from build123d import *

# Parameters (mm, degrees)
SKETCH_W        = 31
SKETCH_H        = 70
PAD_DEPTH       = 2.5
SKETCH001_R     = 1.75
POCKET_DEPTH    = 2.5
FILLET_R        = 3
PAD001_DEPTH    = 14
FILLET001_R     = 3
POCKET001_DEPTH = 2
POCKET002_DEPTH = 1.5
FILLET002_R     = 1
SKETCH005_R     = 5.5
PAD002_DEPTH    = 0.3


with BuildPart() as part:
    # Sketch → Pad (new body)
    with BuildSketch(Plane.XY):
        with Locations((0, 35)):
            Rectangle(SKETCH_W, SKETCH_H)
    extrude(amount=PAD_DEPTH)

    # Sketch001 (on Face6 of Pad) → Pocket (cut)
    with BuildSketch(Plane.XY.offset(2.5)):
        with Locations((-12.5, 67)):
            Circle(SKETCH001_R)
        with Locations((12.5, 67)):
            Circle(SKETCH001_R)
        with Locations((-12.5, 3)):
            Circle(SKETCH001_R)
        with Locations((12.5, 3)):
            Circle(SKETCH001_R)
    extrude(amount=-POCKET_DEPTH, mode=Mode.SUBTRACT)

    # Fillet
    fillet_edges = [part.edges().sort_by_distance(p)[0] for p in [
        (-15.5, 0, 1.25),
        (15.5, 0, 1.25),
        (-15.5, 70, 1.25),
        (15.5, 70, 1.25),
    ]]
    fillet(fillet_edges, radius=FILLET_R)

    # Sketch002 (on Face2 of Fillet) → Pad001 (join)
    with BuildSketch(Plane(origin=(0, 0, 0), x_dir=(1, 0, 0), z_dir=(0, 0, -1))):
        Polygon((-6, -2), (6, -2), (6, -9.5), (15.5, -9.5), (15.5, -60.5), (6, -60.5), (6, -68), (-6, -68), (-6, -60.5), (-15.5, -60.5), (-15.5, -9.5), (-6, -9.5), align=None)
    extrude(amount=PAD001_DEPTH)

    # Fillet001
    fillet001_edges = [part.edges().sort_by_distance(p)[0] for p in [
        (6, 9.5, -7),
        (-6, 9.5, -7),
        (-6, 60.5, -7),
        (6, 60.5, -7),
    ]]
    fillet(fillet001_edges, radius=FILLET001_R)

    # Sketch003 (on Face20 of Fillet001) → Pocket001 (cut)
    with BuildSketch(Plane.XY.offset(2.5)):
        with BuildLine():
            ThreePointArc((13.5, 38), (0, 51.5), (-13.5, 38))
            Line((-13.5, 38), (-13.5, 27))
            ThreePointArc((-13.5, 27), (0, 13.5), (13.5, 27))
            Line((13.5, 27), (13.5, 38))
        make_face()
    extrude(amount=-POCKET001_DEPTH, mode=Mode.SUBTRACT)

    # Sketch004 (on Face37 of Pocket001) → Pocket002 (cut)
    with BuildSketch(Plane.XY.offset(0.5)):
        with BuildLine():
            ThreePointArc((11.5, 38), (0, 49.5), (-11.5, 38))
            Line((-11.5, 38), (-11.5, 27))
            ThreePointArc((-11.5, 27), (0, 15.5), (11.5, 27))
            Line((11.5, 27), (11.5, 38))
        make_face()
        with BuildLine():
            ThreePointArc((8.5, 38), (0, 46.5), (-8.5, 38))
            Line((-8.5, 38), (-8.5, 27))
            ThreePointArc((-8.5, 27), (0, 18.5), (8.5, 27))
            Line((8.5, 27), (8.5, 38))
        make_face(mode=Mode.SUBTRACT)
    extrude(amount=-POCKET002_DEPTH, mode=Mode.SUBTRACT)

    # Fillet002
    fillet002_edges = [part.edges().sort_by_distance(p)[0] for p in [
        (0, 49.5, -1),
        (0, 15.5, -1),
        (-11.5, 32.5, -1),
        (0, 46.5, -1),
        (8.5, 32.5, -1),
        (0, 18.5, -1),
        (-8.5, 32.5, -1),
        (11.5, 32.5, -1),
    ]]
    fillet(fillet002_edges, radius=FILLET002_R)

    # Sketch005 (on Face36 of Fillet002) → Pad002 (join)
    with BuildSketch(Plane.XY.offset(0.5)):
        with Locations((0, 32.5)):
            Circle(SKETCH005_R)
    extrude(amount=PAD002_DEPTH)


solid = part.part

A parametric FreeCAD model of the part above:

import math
import FreeCAD as App
import Part
import Sketcher
from FreeCAD import Vector
Q = App.Units.Quantity


def edges_at(feature, points):
    """Names of the edges that pass closest to the given points."""
    edges = feature.Shape.Edges
    near = lambda p: min(range(len(edges)), key=lambda i: edges[i].distToShape(Part.Vertex(*p))[0])
    return sorted({f"Edge{near(p) + 1}" for p in points})

doc = App.newDocument("Part")
body = doc.addObject("PartDesign::Body", "Body")

sketch1 = doc.addObject("Sketcher::SketchObject", "Sketch")
body.addObject(sketch1)
sketch1.AttachmentSupport = (doc.XY_Plane, [""])
sketch1.MapMode = "FlatFace"
sketch1.addGeometry([
    Part.LineSegment(Vector(-16, 70, 0), Vector(-16, 0, 0)),
    Part.LineSegment(Vector(-16, 0, 0), Vector(16, 0, 0)),
    Part.LineSegment(Vector(16, 0, 0), Vector(16, 70, 0)),
    Part.LineSegment(Vector(16, 70, 0), Vector(-16, 70, 0)),
], False)
sketch1.addConstraint([
    Sketcher.Constraint("Coincident", 0, 2, 1, 1),
    Sketcher.Constraint("Coincident", 1, 2, 2, 1),
    Sketcher.Constraint("Coincident", 2, 2, 3, 1),
    Sketcher.Constraint("Coincident", 3, 2, 0, 1),
    Sketcher.Constraint("Vertical", 0),
    Sketcher.Constraint("Horizontal", 1),
    Sketcher.Constraint("Vertical", 2),
    Sketcher.Constraint("Horizontal", 3),
    Sketcher.Constraint("Symmetric", 0, 2, 1, 2, -1, 1),
    Sketcher.Constraint("DistanceX", 1, 1, 1, 2, Q("31 mm")),
    Sketcher.Constraint("DistanceY", 0, 2, 0, 1, Q("70 mm")),
])
pad1 = doc.addObject("PartDesign::Pad", "Pad")
body.addObject(pad1)
pad1.Profile = sketch1
pad1.Length = 2.5

sketch2 = doc.addObject("Sketcher::SketchObject", "Sketch001")
body.addObject(sketch2)
sketch2.AttachmentSupport = (doc.XY_Plane, [""])
sketch2.MapMode = "FlatFace"
sketch2.AttachmentOffset = App.Placement(Vector(0, 0, 2.5), App.Rotation())
sketch2.addGeometry([
    Part.Circle(Vector(-12.5, 67, 0), Vector(0, 0, 1), 1.8),
    Part.Circle(Vector(12.5, 67, 0), Vector(0, 0, 1), 1.8),
    Part.Circle(Vector(-12.5, 3, 0), Vector(0, 0, 1), 1.8),
    Part.Circle(Vector(12.5, 3, 0), Vector(0, 0, 1), 1.8),
], False)
sketch2.addConstraint([
    Sketcher.Constraint("Equal", 0, 1),
    Sketcher.Constraint("Equal", 1, 2),
    Sketcher.Constraint("Equal", 2, 3),
    Sketcher.Constraint("Symmetric", 0, 3, 1, 3, -2),
    Sketcher.Constraint("Symmetric", 2, 3, 3, 3, -2),
    Sketcher.Constraint("Vertical", 0, 3, 2, 3),
    Sketcher.Constraint("Diameter", 0, Q("3.5 mm")),
    Sketcher.Constraint("DistanceY", -1, 1, 0, 3, Q("67 mm")),
    Sketcher.Constraint("DistanceY", -1, 1, 2, 3, Q("3 mm")),
    Sketcher.Constraint("DistanceX", 0, 3, 1, 3, Q("25 mm")),
])
pocket1 = doc.addObject("PartDesign::Pocket", "Pocket")
body.addObject(pocket1)
pocket1.Profile = sketch2
pocket1.Length = 2.5
doc.recompute()

fillet = doc.addObject("PartDesign::Fillet", "Fillet")
body.addObject(fillet)
fillet.Base = (pocket1, edges_at(pocket1, [
    (-15.5, 0, 1.25),
    (15.5, 0, 1.25),
    (-15.5, 70, 1.25),
    (15.5, 70, 1.25),
]))
fillet.Radius = 3

sketch3 = doc.addObject("Sketcher::SketchObject", "Sketch002")
body.addObject(sketch3)
sketch3.AttachmentSupport = (doc.XY_Plane, [""])
sketch3.MapMode = "FlatFace"
sketch3.addGeometry([
    Part.LineSegment(Vector(6, 2, 0), Vector(-6, 2, 0)),
    Part.LineSegment(Vector(-6, 2, 0), Vector(-6, 10, 0)),
    Part.LineSegment(Vector(-6, 10, 0), Vector(-16, 10, 0)),
    Part.LineSegment(Vector(-16, 10, 0), Vector(-16, 60, 0)),
    Part.LineSegment(Vector(-16, 60, 0), Vector(-6, 60, 0)),
    Part.LineSegment(Vector(-6, 60, 0), Vector(-6, 68, 0)),
    Part.LineSegment(Vector(-6, 68, 0), Vector(6, 68, 0)),
    Part.LineSegment(Vector(6, 68, 0), Vector(6, 60, 0)),
    Part.LineSegment(Vector(6, 60, 0), Vector(16, 60, 0)),
    Part.LineSegment(Vector(16, 60, 0), Vector(16, 10, 0)),
    Part.LineSegment(Vector(16, 10, 0), Vector(6, 10, 0)),
    Part.LineSegment(Vector(6, 10, 0), Vector(6, 2, 0)),
], False)
sketch3.addConstraint([
    Sketcher.Constraint("Coincident", 0, 2, 1, 1),
    Sketcher.Constraint("Coincident", 1, 2, 2, 1),
    Sketcher.Constraint("Coincident", 2, 2, 3, 1),
    Sketcher.Constraint("Coincident", 3, 2, 4, 1),
    Sketcher.Constraint("Coincident", 4, 2, 5, 1),
    Sketcher.Constraint("Coincident", 5, 2, 6, 1),
    Sketcher.Constraint("Coincident", 6, 2, 7, 1),
    Sketcher.Constraint("Coincident", 7, 2, 8, 1),
    Sketcher.Constraint("Coincident", 8, 2, 9, 1),
    Sketcher.Constraint("Coincident", 9, 2, 10, 1),
    Sketcher.Constraint("Coincident", 10, 2, 11, 1),
    Sketcher.Constraint("Coincident", 11, 2, 0, 1),
    Sketcher.Constraint("Horizontal", 0),
    Sketcher.Constraint("Vertical", 1),
    Sketcher.Constraint("Horizontal", 2),
    Sketcher.Constraint("Vertical", 3),
    Sketcher.Constraint("Horizontal", 4),
    Sketcher.Constraint("Vertical", 5),
    Sketcher.Constraint("Horizontal", 6),
    Sketcher.Constraint("Vertical", 7),
    Sketcher.Constraint("Horizontal", 8),
    Sketcher.Constraint("Vertical", 9),
    Sketcher.Constraint("Horizontal", 10),
    Sketcher.Constraint("Vertical", 11),
    Sketcher.Constraint("Symmetric", 4, 2, 7, 2, -2),
    Sketcher.Constraint("Symmetric", 2, 2, 9, 2, -2),
    Sketcher.Constraint("Vertical", 1, 2, 4, 2),
    Sketcher.Constraint("Vertical", 7, 2, 10, 2),
    Sketcher.Constraint("Equal", 1, 5),
    Sketcher.Constraint("DistanceX", 0, 2, 0, 1, Q("12 mm")),
    Sketcher.Constraint("DistanceY", 3, 1, 3, 2, Q("51 mm")),
    Sketcher.Constraint("DistanceX", 2, 2, 2, 1, Q("9.5 mm")),
    Sketcher.Constraint("DistanceY", 1, 1, 1, 2, Q("7.5 mm")),
    Sketcher.Constraint("DistanceY", -1, 1, 0, 2, Q("2 mm")),
])
pad2 = doc.addObject("PartDesign::Pad", "Pad001")
body.addObject(pad2)
pad2.Profile = sketch3
pad2.Length = 14
pad2.Reversed = True
doc.recompute()

fillet2 = doc.addObject("PartDesign::Fillet", "Fillet001")
body.addObject(fillet2)
fillet2.Base = (pad2, edges_at(pad2, [
    (6, 9.5, -7),
    (-6, 9.5, -7),
    (-6, 60.5, -7),
    (6, 60.5, -7),
]))
fillet2.Radius = 3

sketch4 = doc.addObject("Sketcher::SketchObject", "Sketch003")
body.addObject(sketch4)
sketch4.AttachmentSupport = (doc.XY_Plane, [""])
sketch4.MapMode = "FlatFace"
sketch4.AttachmentOffset = App.Placement(Vector(0, 0, 2.5), App.Rotation())
sketch4.addGeometry([
    Part.ArcOfCircle(Part.Circle(Vector(0, 38, 0), Vector(0, 0, 1), 14), math.radians(0), math.radians(180)),
    Part.LineSegment(Vector(-14, 38, 0), Vector(-14, 27, 0)),
    Part.ArcOfCircle(Part.Circle(Vector(0, 27, 0), Vector(0, 0, 1), 14), math.radians(180), math.radians(360)),
    Part.LineSegment(Vector(14, 27, 0), Vector(14, 38, 0)),
], False)
sketch4.addConstraint([
    Sketcher.Constraint("Tangent", 0, 2, 1, 1),
    Sketcher.Constraint("Tangent", 1, 2, 2, 1),
    Sketcher.Constraint("Tangent", 2, 2, 3, 1),
    Sketcher.Constraint("Tangent", 3, 2, 0, 1),
    Sketcher.Constraint("Vertical", 1),
    Sketcher.Constraint("Vertical", 3),
    Sketcher.Constraint("PointOnObject", 0, 3, -2),
    Sketcher.Constraint("Radius", 0, Q("13.5 mm")),
    Sketcher.Constraint("DistanceY", 1, 2, 1, 1, Q("11 mm")),
    Sketcher.Constraint("DistanceY", -1, 1, 0, 3, Q("38 mm")),
])
pocket2 = doc.addObject("PartDesign::Pocket", "Pocket001")
body.addObject(pocket2)
pocket2.Profile = sketch4
pocket2.Length = 2

sketch5 = doc.addObject("Sketcher::SketchObject", "Sketch004")
body.addObject(sketch5)
sketch5.AttachmentSupport = (doc.XY_Plane, [""])
sketch5.MapMode = "FlatFace"
sketch5.AttachmentOffset = App.Placement(Vector(0, 0, 0.5), App.Rotation())
sketch5.addGeometry([
    Part.ArcOfCircle(Part.Circle(Vector(0, 38, 0), Vector(0, 0, 1), 12), math.radians(0), math.radians(180)),
    Part.LineSegment(Vector(-12, 38, 0), Vector(-12, 27, 0)),
    Part.ArcOfCircle(Part.Circle(Vector(0, 27, 0), Vector(0, 0, 1), 12), math.radians(180), math.radians(360)),
    Part.LineSegment(Vector(12, 27, 0), Vector(12, 38, 0)),
    Part.ArcOfCircle(Part.Circle(Vector(0, 38, 0), Vector(0, 0, 1), 8), math.radians(0), math.radians(180)),
    Part.LineSegment(Vector(8, 38, 0), Vector(8, 27, 0)),
    Part.ArcOfCircle(Part.Circle(Vector(0, 27, 0), Vector(0, 0, 1), 8), math.radians(180), math.radians(360)),
    Part.LineSegment(Vector(-8, 27, 0), Vector(-8, 38, 0)),
], False)
sketch5.addConstraint([
    Sketcher.Constraint("Tangent", 0, 2, 1, 1),
    Sketcher.Constraint("Tangent", 1, 2, 2, 1),
    Sketcher.Constraint("Tangent", 2, 2, 3, 1),
    Sketcher.Constraint("Tangent", 3, 2, 0, 1),
    Sketcher.Constraint("Tangent", 4, 1, 5, 1),
    Sketcher.Constraint("Tangent", 5, 2, 6, 2),
    Sketcher.Constraint("Tangent", 6, 1, 7, 1),
    Sketcher.Constraint("Tangent", 7, 2, 4, 2),
    Sketcher.Constraint("Vertical", 1),
    Sketcher.Constraint("Vertical", 3),
    Sketcher.Constraint("Vertical", 5),
    Sketcher.Constraint("Vertical", 7),
    Sketcher.Constraint("Coincident", 4, 3, 0, 3),
    Sketcher.Constraint("PointOnObject", 0, 3, -2),
    Sketcher.Constraint("Horizontal", 6, 3, 1, 2),
    Sketcher.Constraint("Radius", 0, Q("11.5 mm")),
    Sketcher.Constraint("Radius", 4, Q("8.5 mm")),
    Sketcher.Constraint("DistanceY", 1, 2, 1, 1, Q("11 mm")),
    Sketcher.Constraint("DistanceY", -1, 1, 0, 3, Q("38 mm")),
])
pocket3 = doc.addObject("PartDesign::Pocket", "Pocket002")
body.addObject(pocket3)
pocket3.Profile = sketch5
pocket3.Length = 1.5
doc.recompute()

fillet3 = doc.addObject("PartDesign::Fillet", "Fillet002")
body.addObject(fillet3)
fillet3.Base = (pocket3, edges_at(pocket3, [
    (0, 49.5, -1),
    (0, 15.5, -1),
    (-11.5, 32.5, -1),
    (0, 46.5, -1),
    (8.5, 32.5, -1),
    (0, 18.5, -1),
    (-8.5, 32.5, -1),
    (11.5, 32.5, -1),
]))
fillet3.Radius = 1

sketch6 = doc.addObject("Sketcher::SketchObject", "Sketch005")
body.addObject(sketch6)
sketch6.AttachmentSupport = (doc.XY_Plane, [""])
sketch6.MapMode = "FlatFace"
sketch6.AttachmentOffset = App.Placement(Vector(0, 0, 0.5), App.Rotation())
sketch6.addGeometry(Part.Circle(Vector(0, 32, 0), Vector(0, 0, 1), 6), False)
sketch6.addConstraint([
    Sketcher.Constraint("PointOnObject", 0, 3, -2),
    Sketcher.Constraint("Diameter", 0, Q("11 mm")),
    Sketcher.Constraint("DistanceY", -1, 1, 0, 3, Q("32.5 mm")),
])
pad3 = doc.addObject("PartDesign::Pad", "Pad002")
body.addObject(pad3)
pad3.Profile = sketch6
pad3.Length = 0.3

doc.recompute()
